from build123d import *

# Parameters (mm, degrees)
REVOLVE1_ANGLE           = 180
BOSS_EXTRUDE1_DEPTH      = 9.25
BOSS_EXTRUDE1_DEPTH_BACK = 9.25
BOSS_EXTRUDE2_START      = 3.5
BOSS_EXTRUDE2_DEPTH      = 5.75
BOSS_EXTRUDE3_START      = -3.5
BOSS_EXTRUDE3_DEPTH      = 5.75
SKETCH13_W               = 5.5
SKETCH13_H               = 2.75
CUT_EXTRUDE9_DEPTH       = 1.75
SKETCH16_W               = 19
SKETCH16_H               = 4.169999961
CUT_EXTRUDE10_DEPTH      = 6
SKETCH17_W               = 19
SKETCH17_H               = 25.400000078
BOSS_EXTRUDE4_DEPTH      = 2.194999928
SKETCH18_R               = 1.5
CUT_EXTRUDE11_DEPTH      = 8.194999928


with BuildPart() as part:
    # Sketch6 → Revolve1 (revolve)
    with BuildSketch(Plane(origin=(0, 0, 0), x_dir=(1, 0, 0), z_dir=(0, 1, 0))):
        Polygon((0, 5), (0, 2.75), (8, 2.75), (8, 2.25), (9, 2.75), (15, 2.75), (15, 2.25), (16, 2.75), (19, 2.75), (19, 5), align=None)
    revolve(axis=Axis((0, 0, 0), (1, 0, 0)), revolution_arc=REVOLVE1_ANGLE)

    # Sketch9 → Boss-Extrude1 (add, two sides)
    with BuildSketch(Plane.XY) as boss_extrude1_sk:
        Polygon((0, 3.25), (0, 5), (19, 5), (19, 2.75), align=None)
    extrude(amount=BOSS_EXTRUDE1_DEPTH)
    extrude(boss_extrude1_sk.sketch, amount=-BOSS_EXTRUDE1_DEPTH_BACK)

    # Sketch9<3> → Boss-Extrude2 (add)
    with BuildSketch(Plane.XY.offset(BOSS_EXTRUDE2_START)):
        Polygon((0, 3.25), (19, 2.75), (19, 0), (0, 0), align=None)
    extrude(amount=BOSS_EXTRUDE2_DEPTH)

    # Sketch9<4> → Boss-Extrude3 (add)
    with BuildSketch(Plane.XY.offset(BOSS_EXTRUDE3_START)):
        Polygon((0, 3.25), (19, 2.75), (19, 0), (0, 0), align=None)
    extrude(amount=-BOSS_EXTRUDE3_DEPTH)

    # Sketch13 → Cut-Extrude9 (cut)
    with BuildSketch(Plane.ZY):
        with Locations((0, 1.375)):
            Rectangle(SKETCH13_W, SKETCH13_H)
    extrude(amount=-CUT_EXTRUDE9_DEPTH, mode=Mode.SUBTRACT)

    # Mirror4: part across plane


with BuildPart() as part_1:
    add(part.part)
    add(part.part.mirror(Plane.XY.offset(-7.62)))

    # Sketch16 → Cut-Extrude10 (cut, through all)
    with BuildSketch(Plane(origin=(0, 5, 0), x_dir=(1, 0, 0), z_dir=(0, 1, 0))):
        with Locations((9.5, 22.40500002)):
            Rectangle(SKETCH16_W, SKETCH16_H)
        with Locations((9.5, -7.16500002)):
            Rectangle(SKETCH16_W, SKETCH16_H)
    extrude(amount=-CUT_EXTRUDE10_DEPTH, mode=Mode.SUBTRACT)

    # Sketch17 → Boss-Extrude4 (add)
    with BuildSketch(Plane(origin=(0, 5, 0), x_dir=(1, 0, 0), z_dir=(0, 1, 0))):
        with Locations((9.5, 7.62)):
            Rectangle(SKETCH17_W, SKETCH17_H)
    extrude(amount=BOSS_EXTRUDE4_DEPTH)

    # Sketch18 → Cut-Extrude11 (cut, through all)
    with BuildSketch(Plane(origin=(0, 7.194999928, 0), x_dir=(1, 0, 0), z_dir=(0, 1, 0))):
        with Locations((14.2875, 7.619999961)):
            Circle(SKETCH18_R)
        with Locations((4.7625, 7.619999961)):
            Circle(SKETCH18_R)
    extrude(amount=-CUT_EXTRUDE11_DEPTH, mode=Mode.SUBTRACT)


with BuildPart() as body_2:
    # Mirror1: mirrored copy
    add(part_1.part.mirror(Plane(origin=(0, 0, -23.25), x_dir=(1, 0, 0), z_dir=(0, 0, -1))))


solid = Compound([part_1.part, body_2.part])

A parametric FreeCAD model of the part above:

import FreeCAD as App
import Part
import Sketcher
from FreeCAD import Vector

doc = App.newDocument("Part")
body = doc.addObject("PartDesign::Body", "Body")

# Sketch on XZ plane
sketch1 = body.newObject("Sketcher::SketchObject", "Sketch")
sketch1.AttachmentSupport = (doc.getObject("XZ_Plane"), [""])
sketch1.MapMode = "FlatFace"
sketch1.addGeometry([
    Part.LineSegment(Vector(0, -5, 0), Vector(0, -2.75, 0)),  # 0
    Part.LineSegment(Vector(0, -2.75, 0), Vector(8, -2.75, 0)),  # 1
    Part.LineSegment(Vector(8, -2.75, 0), Vector(8, -2.25, 0)),  # 2
    Part.LineSegment(Vector(8, -2.25, 0), Vector(9, -2.75, 0)),  # 3
    Part.LineSegment(Vector(9, -2.75, 0), Vector(15, -2.75, 0)),  # 4
    Part.LineSegment(Vector(15, -2.75, 0), Vector(15, -2.25, 0)),  # 5
    Part.LineSegment(Vector(15, -2.25, 0), Vector(16, -2.75, 0)),  # 6
    Part.LineSegment(Vector(16, -2.75, 0), Vector(19, -2.75, 0)),  # 7
    Part.LineSegment(Vector(19, -2.75, 0), Vector(19, -5, 0)),  # 8
    Part.LineSegment(Vector(19, -5, 0), Vector(0, -5, 0)),  # 9
], False)
sketch1.addConstraint([
    Sketcher.Constraint("Coincident", 0, 2, 1, 1),
    Sketcher.Constraint("Coincident", 1, 2, 2, 1),
    Sketcher.Constraint("Coincident", 2, 2, 3, 1),
    Sketcher.Constraint("Coincident", 3, 2, 4, 1),
    Sketcher.Constraint("Coincident", 4, 2, 5, 1),
    Sketcher.Constraint("Coincident", 5, 2, 6, 1),
    Sketcher.Constraint("Coincident", 6, 2, 7, 1),
    Sketcher.Constraint("Coincident", 7, 2, 8, 1),
    Sketcher.Constraint("Coincident", 8, 2, 9, 1),
    Sketcher.Constraint("Coincident", 9, 2, 0, 1),
    Sketcher.Constraint("Vertical", 0),
    Sketcher.Constraint("Horizontal", 1),
    Sketcher.Constraint("Vertical", 2),
    Sketcher.Constraint("Horizontal", 4),
    Sketcher.Constraint("Vertical", 5),
    Sketcher.Constraint("Horizontal", 7),
    Sketcher.Constraint("Vertical", 8),
    Sketcher.Constraint("Horizontal", 9),
    Sketcher.Constraint("PointOnObject", 0, 2, -2),
    Sketcher.Constraint("Parallel", 3, 6),
    Sketcher.Constraint("Horizontal", 1, 2, 3, 2),
    Sketcher.Constraint("Horizontal", 2, 2, 5, 2),
    Sketcher.Constraint("Horizontal", 4, 2, 6, 2),
    Sketcher.Constraint("DistanceX", 1, 1, 1, 2, 8.0),
    Sketcher.Constraint("DistanceX", 4, 1, 4, 2, 6.0),
    Sketcher.Constraint("DistanceX", 7, 1, 7, 2, 3.0),
    Sketcher.Constraint("DistanceX", 9, 2, 9, 1, 19.0),
    Sketcher.Constraint("DistanceY", 2, 1, 2, 2, 0.5),
    Sketcher.Constraint("DistanceY", 8, 2, -1, 1, 5.0),
    Sketcher.Constraint("DistanceY", 0, 1, 0, 2, 2.25),
])
revolution = body.newObject("PartDesign::Revolution", "Revolution")
revolution.Profile = sketch1
revolution.ReferenceAxis = (sketch1, ["H_Axis"])
revolution.Angle = 180

# Sketch on XY plane
sketch2 = body.newObject("Sketcher::SketchObject", "Sketch001")
sketch2.AttachmentSupport = (doc.getObject("XY_Plane"), [""])
sketch2.MapMode = "FlatFace"
sketch2.addGeometry([
    Part.LineSegment(Vector(0, 5, 0), Vector(0, 3.25, 0)),
    Part.LineSegment(Vector(0, 3.25, 0), Vector(19, 2.75, 0)),
    Part.LineSegment(Vector(19, 2.75, 0), Vector(19, 5, 0)),
    Part.LineSegment(Vector(19, 5, 0), Vector(0, 5, 0)),
], False)
sketch2.addConstraint([
    Sketcher.Constraint("Coincident", 0, 2, 1, 1),
    Sketcher.Constraint("Coincident", 1, 2, 2, 1),
    Sketcher.Constraint("Coincident", 2, 2, 3, 1),
    Sketcher.Constraint("Coincident", 3, 2, 0, 1),
    Sketcher.Constraint("Vertical", 0),
    Sketcher.Constraint("Vertical", 2),
    Sketcher.Constraint("Horizontal", 3),
    Sketcher.Constraint("PointOnObject", 0, 2, -2),
    Sketcher.Constraint("DistanceX", 3, 2, 3, 1, 19.0),
    Sketcher.Constraint("DistanceY", -1, 1, 2, 2, 5.0),
    Sketcher.Constraint("DistanceY", 0, 2, 0, 1, 1.75),
    Sketcher.Constraint("DistanceY", 2, 1, 2, 2, 2.25),
])
pad1 = body.newObject("PartDesign::Pad", "Pad")
pad1.Profile = sketch2
pad1.Type = "TwoLengths"
pad1.Length = 9.25
pad1.Length2 = 9.25

# Sketch on XY plane
sketch3 = body.newObject("Sketcher::SketchObject", "Sketch002")
sketch3.AttachmentSupport = (doc.getObject("XY_Plane"), [""])
sketch3.MapMode = "FlatFace"
sketch3.AttachmentOffset = App.Placement(Vector(0, 0, 3.5), App.Rotation())
sketch3.addGeometry([
    Part.LineSegment(Vector(19, 2.75, 0), Vector(0, 3.25, 0)),
    Part.LineSegment(Vector(0, 3.25, 0), Vector(0, 0, 0)),
    Part.LineSegment(Vector(0, 0, 0), Vector(19, 0, 0)),
    Part.LineSegment(Vector(19, 0, 0), Vector(19, 2.75, 0)),
], False)
sketch3.addConstraint([
    Sketcher.Constraint("Coincident", 0, 2, 1, 1),
    Sketcher.Constraint("Coincident", 1, 2, 2, 1),
    Sketcher.Constraint("Coincident", 2, 2, 3, 1),
    Sketcher.Constraint("Coincident", 3, 2, 0, 1),
    Sketcher.Constraint("Vertical", 1),
    Sketcher.Constraint("Horizontal", 2),
    Sketcher.Constraint("Vertical", 3),
    Sketcher.Constraint("Coincident", 1, 2, -1, 1),
    Sketcher.Constraint("DistanceX", 2, 1, 2, 2, 19.0),
    Sketcher.Constraint("DistanceY", 1, 2, 1, 1, 3.25),
    Sketcher.Constraint("DistanceY", 3, 1, 3, 2, 2.75),
])
pad2 = body.newObject("PartDesign::Pad", "Pad001")
pad2.Profile = sketch3
pad2.Length = 5.75

# Sketch on XY plane
sketch4 = body.newObject("Sketcher::SketchObject", "Sketch003")
sketch4.AttachmentSupport = (doc.getObject("XY_Plane"), [""])
sketch4.MapMode = "FlatFace"
sketch4.AttachmentOffset = App.Placement(Vector(0, 0, -3.5), App.Rotation())
sketch4.addGeometry([
    Part.LineSegment(Vector(19, 2.75, 0), Vector(0, 3.25, 0)),
    Part.LineSegment(Vector(0, 3.25, 0), Vector(0, 0, 0)),
    Part.LineSegment(Vector(0, 0, 0), Vector(19, 0, 0)),
    Part.LineSegment(Vector(19, 0, 0), Vector(19, 2.75, 0)),
], False)
sketch4.addConstraint([
    Sketcher.Constraint("Coincident", 0, 2, 1, 1),
    Sketcher.Constraint("Coincident", 1, 2, 2, 1),
    Sketcher.Constraint("Coincident", 2, 2, 3, 1),
    Sketcher.Constraint("Coincident", 3, 2, 0, 1),
    Sketcher.Constraint("Vertical", 1),
    Sketcher.Constraint("Horizontal", 2),
    Sketcher.Constraint("Vertical", 3),
    Sketcher.Constraint("Coincident", 1, 2, -1, 1),
    Sketcher.Constraint("DistanceX", 2, 1, 2, 2, 19.0),
    Sketcher.Constraint("DistanceY", 1, 2, 1, 1, 3.25),
    Sketcher.Constraint("DistanceY", 3, 1, 3, 2, 2.75),
])
pad3 = body.newObject("PartDesign::Pad", "Pad002")
pad3.Profile = sketch4
pad3.Length = 5.75
pad3.Reversed = True

# Sketch on YZ plane
sketch5 = body.newObject("Sketcher::SketchObject", "Sketch004")
sketch5.AttachmentSupport = (doc.getObject("YZ_Plane"), [""])
sketch5.MapMode = "FlatFace"
sketch5.addGeometry([
    Part.LineSegment(Vector(2.75, -2.75, 0), Vector(0, -2.75, 0)),
    Part.LineSegment(Vector(0, -2.75, 0), Vector(0, 2.75, 0)),
    Part.LineSegment(Vector(0, 2.75, 0), Vector(2.75, 2.75, 0)),
    Part.LineSegment(Vector(2.75, 2.75, 0), Vector(2.75, -2.75, 0)),
], False)
sketch5.addConstraint([
    Sketcher.Constraint("Coincident", 0, 2, 1, 1),
    Sketcher.Constraint("Coincident", 1, 2, 2, 1),
    Sketcher.Constraint("Coincident", 2, 2, 3, 1),
    Sketcher.Constraint("Coincident", 3, 2, 0, 1),
    Sketcher.Constraint("Horizontal", 0),
    Sketcher.Constraint("Vertical", 1),
    Sketcher.Constraint("Horizontal", 2),
    Sketcher.Constraint("Vertical", 3),
    Sketcher.Constraint("Symmetric", 0, 2, 1, 2, -1, 1),
    Sketcher.Constraint("DistanceY", 1, 1, 1, 2, 5.5),
    Sketcher.Constraint("DistanceX", 0, 2, 0, 1, 2.75),
])
pocket1 = body.newObject("PartDesign::Pocket", "Pocket")
pocket1.Profile = sketch5
pocket1.Length = 1.75
pocket1.Reversed = True
body2 = doc.addObject("PartDesign::Body", "Body001")
doc.recompute()

body2.BaseFeature = body
doc.recompute()

mirroring = doc.addObject("Part::Mirroring", "Mirroring")
mirroring.Source = body
mirroring.Base = Vector(0, 0, -7.62)
mirroring.Normal = Vector(0, 0, 1)
body3 = doc.addObject("PartDesign::Body", "Body002")
body3.BaseFeature = mirroring
boolean = body2.newObject("PartDesign::Boolean", "Boolean")
boolean.Type = "Fuse"
boolean.addObjects([body3])
doc.recompute()

# Sketch on XZ plane
sketch6 = body2.newObject("Sketcher::SketchObject", "Sketch005")
sketch6.AttachmentSupport = (doc.getObject("XZ_Plane001"), [""])
sketch6.MapMode = "FlatFace"
sketch6.AttachmentOffset = App.Placement(Vector(0, 0, -5), App.Rotation())
sketch6.addGeometry([
    Part.LineSegment(Vector(0, -24.49, 0), Vector(0, -20.32, 0)),  # 0
    Part.LineSegment(Vector(0, -20.32, 0), Vector(19, -20.32, 0)),  # 1
    Part.LineSegment(Vector(19, -20.32, 0), Vector(19, -24.49, 0)),  # 2
    Part.LineSegment(Vector(19, -24.49, 0), Vector(0, -24.49, 0)),  # 3
    Part.LineSegment(Vector(0, 5.08, 0), Vector(0, 9.25, 0)),  # 4
    Part.LineSegment(Vector(0, 9.25, 0), Vector(19, 9.25, 0)),  # 5
    Part.LineSegment(Vector(19, 9.25, 0), Vector(19, 5.08, 0)),  # 6
    Part.LineSegment(Vector(19, 5.08, 0), Vector(0, 5.08, 0)),  # 7
], False)
sketch6.addConstraint([
    Sketcher.Constraint("Coincident", 0, 2, 1, 1),
    Sketcher.Constraint("Coincident", 1, 2, 2, 1),
    Sketcher.Constraint("Coincident", 2, 2, 3, 1),
    Sketcher.Constraint("Coincident", 3, 2, 0, 1),
    Sketcher.Constraint("Coincident", 4, 2, 5, 1),
    Sketcher.Constraint("Coincident", 5, 2, 6, 1),
    Sketcher.Constraint("Coincident", 6, 2, 7, 1),
    Sketcher.Constraint("Coincident", 7, 2, 4, 1),
    Sketcher.Constraint("Vertical", 0),
    Sketcher.Constraint("Horizontal", 1),
    Sketcher.Constraint("Vertical", 2),
    Sketcher.Constraint("Horizontal", 3),
    Sketcher.Constraint("Vertical", 4),
    Sketcher.Constraint("Horizontal", 5),
    Sketcher.Constraint("Vertical", 6),
    Sketcher.Constraint("Horizontal", 7),
    Sketcher.Constraint("PointOnObject", 0, 2, -2),
    Sketcher.Constraint("PointOnObject", 4, 2, -2),
    Sketcher.Constraint("Vertical", 2, 2, 5, 2),
    Sketcher.Constraint("Equal", 2, 4),
    Sketcher.Constraint("DistanceX", 1, 1, 1, 2, 19.0),
    Sketcher.Constraint("DistanceY", 0, 1, 0, 2, 4.17),
    Sketcher.Constraint("DistanceY", 1, 2, 6, 2, 25.4),
    Sketcher.Constraint("DistanceY", 0, 2, -1, 1, 20.32),
])
pocket2 = body2.newObject("PartDesign::Pocket", "Pocket001")
pocket2.Profile = sketch6
pocket2.Type = "ThroughAll"
pocket2.Reversed = True

# Sketch on XZ plane
sketch7 = body2.newObject("Sketcher::SketchObject", "Sketch006")
sketch7.AttachmentSupport = (doc.getObject("XZ_Plane001"), [""])
sketch7.MapMode = "FlatFace"
sketch7.AttachmentOffset = App.Placement(Vector(0, 0, -5), App.Rotation())
sketch7.addGeometry([
    Part.LineSegment(Vector(0, -20.32, 0), Vector(0, 5.08, 0)),
    Part.LineSegment(Vector(0, 5.08, 0), Vector(19, 5.08, 0)),
    Part.LineSegment(Vector(19, 5.08, 0), Vector(19, -20.32, 0)),
    Part.LineSegment(Vector(19, -20.32, 0), Vector(0, -20.32, 0)),
], False)
sketch7.addConstraint([
    Sketcher.Constraint("Coincident", 0, 2, 1, 1),
    Sketcher.Constraint("Coincident", 1, 2, 2, 1),
    Sketcher.Constraint("Coincident", 2, 2, 3, 1),
    Sketcher.Constraint("Coincident", 3, 2, 0, 1),
    Sketcher.Constraint("Vertical", 0),
    Sketcher.Constraint("Horizontal", 1),
    Sketcher.Constraint("Vertical", 2),
    Sketcher.Constraint("Horizontal", 3),
    Sketcher.Constraint("PointOnObject", 0, 2, -2),
    Sketcher.Constraint("DistanceX", 1, 1, 1, 2, 19.0),
    Sketcher.Constraint("DistanceY", 0, 1, 0, 2, 25.4),
    Sketcher.Constraint("DistanceY", -1, 1, 0, 2, 5.08),
])
pad4 = body2.newObject("PartDesign::Pad", "Pad003")
pad4.Profile = sketch7
pad4.Length = 2.195
pad4.Reversed = True

# Sketch on XZ plane
sketch8 = body2.newObject("Sketcher::SketchObject", "Sketch007")
sketch8.AttachmentSupport = (doc.getObject("XZ_Plane001"), [""])
sketch8.MapMode = "FlatFace"
sketch8.AttachmentOffset = App.Placement(Vector(0, 0, -7.195), App.Rotation())
sketch8.addGeometry([
    Part.Circle(Vector(14.2875, -7.62, 0), Vector(0, 0, 1), 1.5),
    Part.Circle(Vector(4.7625, -7.62, 0), Vector(0, 0, 1), 1.5),
], False)
sketch8.addConstraint([
    Sketcher.Constraint("Equal", 0, 1),
    Sketcher.Constraint("Horizontal", 0, 3, 1, 3),
    Sketcher.Constraint("Diameter", 0, 3.0),
    Sketcher.Constraint("DistanceY", 0, 3, -1, 1, 7.62),
    Sketcher.Constraint("DistanceX", 1, 3, 0, 3, 9.525),
    Sketcher.Constraint("DistanceX", -1, 1, 0, 3, 14.2875),
])
pocket3 = body2.newObject("PartDesign::Pocket", "Pocket002")
pocket3.Profile = sketch8
pocket3.Type = "ThroughAll"
pocket3.Reversed = True
body4 = doc.addObject("PartDesign::Body", "Body003")
doc.recompute()

mirroring2 = doc.addObject("Part::Mirroring", "Mirroring001")
mirroring2.Source = body2
mirroring2.Base = Vector(0, 0, -23.25)
mirroring2.Normal = Vector(0, 0, -1)
body4.BaseFeature = mirroring2
doc.recompute()
mirroring.Visibility = False
mirroring2.Visibility = False

doc.recompute()
